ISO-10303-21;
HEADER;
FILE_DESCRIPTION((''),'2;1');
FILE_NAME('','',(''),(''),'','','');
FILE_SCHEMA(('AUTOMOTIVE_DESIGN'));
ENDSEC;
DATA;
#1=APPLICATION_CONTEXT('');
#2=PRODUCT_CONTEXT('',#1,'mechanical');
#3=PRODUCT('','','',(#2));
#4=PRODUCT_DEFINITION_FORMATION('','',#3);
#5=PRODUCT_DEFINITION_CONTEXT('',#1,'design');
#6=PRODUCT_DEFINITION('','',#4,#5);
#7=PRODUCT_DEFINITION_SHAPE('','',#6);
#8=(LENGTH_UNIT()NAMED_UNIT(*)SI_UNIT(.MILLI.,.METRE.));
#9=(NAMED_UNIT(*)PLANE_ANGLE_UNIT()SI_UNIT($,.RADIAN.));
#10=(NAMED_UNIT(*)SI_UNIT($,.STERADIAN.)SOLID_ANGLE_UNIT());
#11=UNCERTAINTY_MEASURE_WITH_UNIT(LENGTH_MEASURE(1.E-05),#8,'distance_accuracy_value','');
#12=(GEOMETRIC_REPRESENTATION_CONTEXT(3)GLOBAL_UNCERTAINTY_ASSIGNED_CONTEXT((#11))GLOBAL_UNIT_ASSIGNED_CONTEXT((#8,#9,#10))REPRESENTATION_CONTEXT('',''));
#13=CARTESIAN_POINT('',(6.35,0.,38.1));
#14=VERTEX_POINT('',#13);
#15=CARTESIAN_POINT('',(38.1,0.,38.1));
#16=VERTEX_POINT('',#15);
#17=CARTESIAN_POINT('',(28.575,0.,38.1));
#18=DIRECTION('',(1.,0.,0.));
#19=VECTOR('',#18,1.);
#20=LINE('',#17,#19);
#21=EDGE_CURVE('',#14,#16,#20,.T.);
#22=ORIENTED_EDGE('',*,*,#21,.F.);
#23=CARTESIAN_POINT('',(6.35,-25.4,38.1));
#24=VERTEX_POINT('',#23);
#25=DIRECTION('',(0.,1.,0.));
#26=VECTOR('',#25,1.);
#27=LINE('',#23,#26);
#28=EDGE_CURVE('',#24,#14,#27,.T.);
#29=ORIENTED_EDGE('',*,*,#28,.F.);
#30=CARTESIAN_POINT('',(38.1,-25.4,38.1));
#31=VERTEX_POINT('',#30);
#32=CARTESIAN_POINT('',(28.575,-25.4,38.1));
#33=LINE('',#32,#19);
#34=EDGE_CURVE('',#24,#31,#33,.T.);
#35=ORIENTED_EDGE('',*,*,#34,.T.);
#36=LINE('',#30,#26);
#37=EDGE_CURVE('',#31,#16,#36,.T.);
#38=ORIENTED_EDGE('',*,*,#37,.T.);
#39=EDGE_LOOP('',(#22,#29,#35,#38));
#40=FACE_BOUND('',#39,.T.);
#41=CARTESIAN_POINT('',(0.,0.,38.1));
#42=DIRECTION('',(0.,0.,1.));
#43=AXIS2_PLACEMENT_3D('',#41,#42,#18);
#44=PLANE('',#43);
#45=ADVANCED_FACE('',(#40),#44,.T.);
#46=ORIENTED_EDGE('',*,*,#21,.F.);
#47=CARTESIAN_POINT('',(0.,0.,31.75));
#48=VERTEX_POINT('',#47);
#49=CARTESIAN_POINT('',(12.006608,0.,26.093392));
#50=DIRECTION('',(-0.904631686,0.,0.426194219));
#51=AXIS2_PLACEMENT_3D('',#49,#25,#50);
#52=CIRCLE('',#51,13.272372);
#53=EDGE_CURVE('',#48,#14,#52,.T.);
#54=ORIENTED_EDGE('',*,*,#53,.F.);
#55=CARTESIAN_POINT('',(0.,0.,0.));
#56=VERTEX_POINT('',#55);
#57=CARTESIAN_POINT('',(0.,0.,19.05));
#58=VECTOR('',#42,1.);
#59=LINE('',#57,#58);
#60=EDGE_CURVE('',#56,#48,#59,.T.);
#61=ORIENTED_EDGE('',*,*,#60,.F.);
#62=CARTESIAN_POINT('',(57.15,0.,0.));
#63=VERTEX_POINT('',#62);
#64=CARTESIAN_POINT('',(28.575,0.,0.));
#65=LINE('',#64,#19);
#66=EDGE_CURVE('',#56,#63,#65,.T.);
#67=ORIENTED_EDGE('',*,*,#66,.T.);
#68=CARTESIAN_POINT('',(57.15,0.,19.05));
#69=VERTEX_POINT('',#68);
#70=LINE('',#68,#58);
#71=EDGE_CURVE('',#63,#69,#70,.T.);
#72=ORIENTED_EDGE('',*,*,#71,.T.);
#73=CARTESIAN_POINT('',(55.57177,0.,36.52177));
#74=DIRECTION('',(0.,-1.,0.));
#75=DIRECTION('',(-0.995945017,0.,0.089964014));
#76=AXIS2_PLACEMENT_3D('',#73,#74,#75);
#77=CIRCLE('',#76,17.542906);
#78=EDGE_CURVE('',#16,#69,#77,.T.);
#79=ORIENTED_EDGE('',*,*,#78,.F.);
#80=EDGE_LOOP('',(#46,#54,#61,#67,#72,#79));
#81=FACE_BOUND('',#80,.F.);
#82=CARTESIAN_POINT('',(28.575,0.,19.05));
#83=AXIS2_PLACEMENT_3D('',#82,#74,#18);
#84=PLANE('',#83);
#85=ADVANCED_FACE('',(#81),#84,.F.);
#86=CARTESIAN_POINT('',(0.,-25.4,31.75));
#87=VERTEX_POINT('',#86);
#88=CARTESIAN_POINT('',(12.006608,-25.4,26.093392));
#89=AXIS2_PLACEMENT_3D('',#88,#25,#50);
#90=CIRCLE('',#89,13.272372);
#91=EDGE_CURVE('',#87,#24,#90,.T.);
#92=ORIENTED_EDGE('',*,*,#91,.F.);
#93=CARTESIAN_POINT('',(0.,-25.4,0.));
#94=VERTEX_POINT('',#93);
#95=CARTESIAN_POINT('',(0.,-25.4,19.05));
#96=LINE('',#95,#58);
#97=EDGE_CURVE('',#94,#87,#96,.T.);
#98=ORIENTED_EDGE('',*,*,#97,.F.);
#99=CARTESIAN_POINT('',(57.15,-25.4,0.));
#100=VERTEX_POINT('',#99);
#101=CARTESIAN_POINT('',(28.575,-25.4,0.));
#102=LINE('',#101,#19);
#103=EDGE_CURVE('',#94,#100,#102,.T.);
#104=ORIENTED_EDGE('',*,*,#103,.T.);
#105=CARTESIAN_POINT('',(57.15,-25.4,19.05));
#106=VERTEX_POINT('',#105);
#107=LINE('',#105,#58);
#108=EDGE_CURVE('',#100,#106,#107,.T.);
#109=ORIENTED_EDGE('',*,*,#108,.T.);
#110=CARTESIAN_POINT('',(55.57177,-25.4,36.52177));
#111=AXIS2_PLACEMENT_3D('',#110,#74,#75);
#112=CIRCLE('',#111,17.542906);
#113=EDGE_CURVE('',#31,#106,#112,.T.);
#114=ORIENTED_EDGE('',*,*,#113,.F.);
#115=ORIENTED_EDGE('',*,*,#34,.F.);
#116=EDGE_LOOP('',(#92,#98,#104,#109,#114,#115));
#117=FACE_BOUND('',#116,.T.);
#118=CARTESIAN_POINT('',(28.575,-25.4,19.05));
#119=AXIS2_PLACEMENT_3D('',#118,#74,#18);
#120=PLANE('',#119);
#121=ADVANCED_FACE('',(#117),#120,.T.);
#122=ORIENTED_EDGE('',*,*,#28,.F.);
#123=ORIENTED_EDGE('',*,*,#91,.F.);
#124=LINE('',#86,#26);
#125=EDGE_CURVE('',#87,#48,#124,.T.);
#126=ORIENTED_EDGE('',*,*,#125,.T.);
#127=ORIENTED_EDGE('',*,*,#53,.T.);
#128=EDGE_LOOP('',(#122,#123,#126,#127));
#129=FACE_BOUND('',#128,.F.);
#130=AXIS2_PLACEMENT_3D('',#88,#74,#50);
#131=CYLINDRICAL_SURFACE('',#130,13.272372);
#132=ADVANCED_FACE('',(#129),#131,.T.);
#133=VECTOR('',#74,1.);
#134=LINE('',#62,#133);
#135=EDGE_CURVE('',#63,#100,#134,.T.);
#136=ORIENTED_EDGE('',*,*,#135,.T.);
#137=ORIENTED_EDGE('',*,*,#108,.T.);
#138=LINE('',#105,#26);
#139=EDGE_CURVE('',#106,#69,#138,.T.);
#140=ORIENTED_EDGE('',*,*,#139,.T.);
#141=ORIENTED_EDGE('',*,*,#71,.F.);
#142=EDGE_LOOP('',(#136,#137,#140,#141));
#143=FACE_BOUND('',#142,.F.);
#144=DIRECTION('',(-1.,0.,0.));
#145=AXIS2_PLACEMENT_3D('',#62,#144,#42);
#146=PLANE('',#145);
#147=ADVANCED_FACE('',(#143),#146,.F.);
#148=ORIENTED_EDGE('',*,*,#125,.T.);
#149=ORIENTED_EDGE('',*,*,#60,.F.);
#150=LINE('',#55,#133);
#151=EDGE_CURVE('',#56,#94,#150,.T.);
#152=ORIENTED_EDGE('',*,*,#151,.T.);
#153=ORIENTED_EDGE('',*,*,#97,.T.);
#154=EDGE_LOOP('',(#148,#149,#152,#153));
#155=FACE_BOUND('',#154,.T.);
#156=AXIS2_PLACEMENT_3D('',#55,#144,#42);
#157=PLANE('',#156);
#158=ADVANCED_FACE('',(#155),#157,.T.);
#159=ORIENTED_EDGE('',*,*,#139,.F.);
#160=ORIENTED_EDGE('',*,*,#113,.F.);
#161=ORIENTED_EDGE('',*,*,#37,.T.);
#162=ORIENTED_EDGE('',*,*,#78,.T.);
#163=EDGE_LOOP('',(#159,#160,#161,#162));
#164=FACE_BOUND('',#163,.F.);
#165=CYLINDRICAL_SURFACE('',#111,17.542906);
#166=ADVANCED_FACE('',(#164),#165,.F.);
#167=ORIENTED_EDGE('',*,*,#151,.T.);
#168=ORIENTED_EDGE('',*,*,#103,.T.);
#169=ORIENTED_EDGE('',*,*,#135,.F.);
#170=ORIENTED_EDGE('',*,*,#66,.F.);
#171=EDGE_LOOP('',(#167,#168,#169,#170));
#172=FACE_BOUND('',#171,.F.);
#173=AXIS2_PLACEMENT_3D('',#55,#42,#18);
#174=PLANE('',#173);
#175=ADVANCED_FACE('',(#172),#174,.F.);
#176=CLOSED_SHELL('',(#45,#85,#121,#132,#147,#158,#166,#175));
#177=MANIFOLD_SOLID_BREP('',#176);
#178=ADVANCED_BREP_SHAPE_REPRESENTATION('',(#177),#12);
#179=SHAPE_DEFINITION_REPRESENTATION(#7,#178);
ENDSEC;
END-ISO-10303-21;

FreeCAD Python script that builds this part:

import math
import FreeCAD as App
import Part
import Sketcher

V = App.Vector
Q = App.Units.Quantity


def add_polygon(sketch, points):
    """Adds a closed chain of lines whose ends are joined by coincident constraints."""
    first, n = sketch.GeometryCount, len(points)
    for a, b in zip(points, points[1:] + points[:1]):
        sketch.addGeometry(Part.LineSegment(App.Vector(*a, 0), App.Vector(*b, 0)), False)
    for i in range(n):
        sketch.addConstraint(Sketcher.Constraint("Coincident", first + i, 2, first + (i + 1) % n, 1))

doc = App.newDocument("Part")
body = doc.addObject("PartDesign::Body", "Body")

# Sketch on XZ plane
sketch1 = doc.addObject("Sketcher::SketchObject", "Sketch")
body.addObject(sketch1)
sketch1.AttachmentSupport = (doc.XZ_Plane, [""])
sketch1.MapMode = "FlatFace"
add_polygon(sketch1, [(0, 38.1), (0, 0), (57.15, 0), (57.15, 38.1)])  # lines 0-3
sketch1.addConstraint([
    Sketcher.Constraint("Vertical", 0),
    Sketcher.Constraint("Horizontal", 1),
    Sketcher.Constraint("Vertical", 2),
    Sketcher.Constraint("Horizontal", 3),
    Sketcher.Constraint("Coincident", 0, 2, -1, 1),
    Sketcher.Constraint("DistanceY", 0, 2, 0, 1, Q("1.5 in")),
    Sketcher.Constraint("DistanceX", 1, 1, 1, 2, Q("2.25 in")),
])
pad1 = doc.addObject("PartDesign::Pad", "Pad")
body.addObject(pad1)
pad1.Profile = sketch1
pad1.Length = Q("1 in")

# Sketch on XZ plane
sketch2 = doc.addObject("Sketcher::SketchObject", "Sketch001")
body.addObject(sketch2)
sketch2.AttachmentSupport = (doc.XZ_Plane, [""])
sketch2.MapMode = "FlatFace"
sketch2.AttachmentOffset = App.Placement(V(0, 0, 1 * 25.4), App.Rotation())
sketch2.addGeometry([
    Part.LineSegment(V(57.15, 38.1, 0), V(38.1, 38.1, 0)),
    Part.ArcOfCircle(Part.Circle(V(55.57177, 36.52177, 0), V(0, 0, 1), 17.542906), math.radians(174.838463), math.radians(275.161537)),
    Part.LineSegment(V(57.15, 19.05, 0), V(57.15, 38.1, 0)),
], False)
sketch2.addConstraint([
    Sketcher.Constraint("Coincident", 0, 2, 1, 1),
    Sketcher.Constraint("Coincident", 1, 2, 2, 1),
    Sketcher.Constraint("Coincident", 2, 2, 0, 1),
    Sketcher.Constraint("Horizontal", 0),
    Sketcher.Constraint("Vertical", 2),
    Sketcher.Constraint("Equal", 0, 2),
    Sketcher.Constraint("DistanceX", 0, 2, 0, 1, Q("0.75 in")),
    Sketcher.Constraint("DistanceX", -1, 1, 0, 2, Q("1.5 in")),
    Sketcher.Constraint("DistanceY", -1, 1, 0, 2, Q("1.5 in")),
    Sketcher.Constraint("Radius", 1, Q("17.542906 mm")),
])
pocket1 = doc.addObject("PartDesign::Pocket", "Pocket")
body.addObject(pocket1)
pocket1.Profile = sketch2
pocket1.Length = Q("1 in")

# Sketch on XZ plane
sketch3 = doc.addObject("Sketcher::SketchObject", "Sketch002")
body.addObject(sketch3)
sketch3.AttachmentSupport = (doc.XZ_Plane, [""])
sketch3.MapMode = "FlatFace"
sketch3.AttachmentOffset = App.Placement(V(0, 0, 1 * 25.4), App.Rotation())
sketch3.addGeometry([
    Part.ArcOfCircle(Part.Circle(V(12.006608, 26.093392, 0), V(0, 0, 1), 13.272372), math.radians(115.226277), math.radians(154.773723)),
    Part.LineSegment(V(6.35, 38.1, 0), V(0, 38.1, 0)),
    Part.LineSegment(V(0, 38.1, 0), V(0, 31.75, 0)),
], False)
sketch3.addConstraint([
    Sketcher.Constraint("Coincident", 0, 1, 1, 1),
    Sketcher.Constraint("Coincident", 1, 2, 2, 1),
    Sketcher.Constraint("Coincident", 2, 2, 0, 2),
    Sketcher.Constraint("Horizontal", 1),
    Sketcher.Constraint("Vertical", 2),
    Sketcher.Constraint("PointOnObject", 1, 2, -2),
    Sketcher.Constraint("Equal", 1, 2),
    Sketcher.Constraint("DistanceX", 1, 2, 1, 1, Q("0.25 in")),
    Sketcher.Constraint("DistanceY", -1, 1, 0, 1, Q("1.5 in")),
    Sketcher.Constraint("Radius", 0, Q("13.272372 mm")),
])
pocket2 = doc.addObject("PartDesign::Pocket", "Pocket001")
body.addObject(pocket2)
pocket2.Profile = sketch3
pocket2.Length = Q("1 in")

doc.recompute()
